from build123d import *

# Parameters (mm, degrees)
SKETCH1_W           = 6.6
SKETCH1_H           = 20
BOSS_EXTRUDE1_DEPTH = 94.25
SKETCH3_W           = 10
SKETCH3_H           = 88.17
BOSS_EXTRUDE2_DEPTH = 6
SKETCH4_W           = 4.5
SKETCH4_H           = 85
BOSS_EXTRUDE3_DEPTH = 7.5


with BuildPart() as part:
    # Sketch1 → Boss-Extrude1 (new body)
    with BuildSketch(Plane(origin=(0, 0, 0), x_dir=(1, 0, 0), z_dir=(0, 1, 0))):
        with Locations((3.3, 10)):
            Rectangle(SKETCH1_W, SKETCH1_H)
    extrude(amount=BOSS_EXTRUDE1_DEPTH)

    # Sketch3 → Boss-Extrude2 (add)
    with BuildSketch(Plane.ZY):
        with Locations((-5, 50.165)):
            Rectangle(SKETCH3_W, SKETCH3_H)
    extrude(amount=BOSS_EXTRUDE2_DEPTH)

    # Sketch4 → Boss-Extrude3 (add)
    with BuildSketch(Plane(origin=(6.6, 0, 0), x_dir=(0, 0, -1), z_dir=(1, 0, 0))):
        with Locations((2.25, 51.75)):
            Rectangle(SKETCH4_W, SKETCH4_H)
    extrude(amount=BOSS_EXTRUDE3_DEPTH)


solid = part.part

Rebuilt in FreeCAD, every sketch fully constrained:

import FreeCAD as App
import Part
import Sketcher

V = App.Vector
Q = App.Units.Quantity

doc = App.newDocument("Part")
params = doc.addObject("Spreadsheet::Sheet", "Params")
for row, (alias, value) in enumerate([
    ("sketch1_height", "20 mm"),
    ("sketch1_width", "6.6 mm"),
    ("pad1_length", "94.25 mm"),
    ("sketch2_height", "10 mm"),
    ("sketch2_width", "88.17 mm"),
    ("pad2_length", "6 mm"),
    ("sketch3_width", "85 mm"),
    ("sketch3_height", "4.5 mm"),
    ("pad3_length", "7.5 mm"),
], start=1):
    params.set(f"A{row}", alias)
    params.set(f"B{row}", "=" + value)
    params.setAlias(f"B{row}", alias)

body = doc.addObject("PartDesign::Body", "Body")

sketch1 = body.newObject("Sketcher::SketchObject", "Sketch")
sketch1.AttachmentSupport = (doc.getObject("XZ_Plane"), [""])
sketch1.MapMode = "FlatFace"
sketch1.addGeometry([
    Part.LineSegment(V(0, -20, 0), V(0, 0, 0)),
    Part.LineSegment(V(0, 0, 0), V(6.6, 0, 0)),
    Part.LineSegment(V(6.6, 0, 0), V(6.6, -20, 0)),
    Part.LineSegment(V(6.6, -20, 0), V(0, -20, 0)),
], False)
sketch1.addConstraint([
    Sketcher.Constraint("Coincident", 0, 2, 1, 1),
    Sketcher.Constraint("Coincident", 1, 2, 2, 1),
    Sketcher.Constraint("Coincident", 2, 2, 3, 1),
    Sketcher.Constraint("Coincident", 3, 2, 0, 1),
    Sketcher.Constraint("Vertical", 0),
    Sketcher.Constraint("Horizontal", 1),
    Sketcher.Constraint("Vertical", 2),
    Sketcher.Constraint("Horizontal", 3),
    Sketcher.Constraint("Coincident", 0, 2, -1, 1),
    Sketcher.Constraint("DistanceY", 0, 1, 0, 2, Q("20 mm")),
    Sketcher.Constraint("DistanceX", 1, 1, 1, 2, Q("6.6 mm")),
])
sketch1.setExpression("Constraints[9]", "Params.sketch1_height")
sketch1.setExpression("Constraints[10]", "Params.sketch1_width")
pad1 = body.newObject("PartDesign::Pad", "Pad")
pad1.Profile = sketch1
pad1.setExpression("Length", "Params.pad1_length")
pad1.Reversed = True

sketch2 = body.newObject("Sketcher::SketchObject", "Sketch001")
sketch2.AttachmentSupport = (doc.getObject("YZ_Plane"), [""])
sketch2.MapMode = "FlatFace"
sketch2.addGeometry([
    Part.LineSegment(V(94.25, -10, 0), V(6.08, -10, 0)),
    Part.LineSegment(V(6.08, -10, 0), V(6.08, 0, 0)),
    Part.LineSegment(V(6.08, 0, 0), V(94.25, 0, 0)),
    Part.LineSegment(V(94.25, 0, 0), V(94.25, -10, 0)),
], False)
sketch2.addConstraint([
    Sketcher.Constraint("Coincident", 0, 2, 1, 1),
    Sketcher.Constraint("Coincident", 1, 2, 2, 1),
    Sketcher.Constraint("Coincident", 2, 2, 3, 1),
    Sketcher.Constraint("Coincident", 3, 2, 0, 1),
    Sketcher.Constraint("Horizontal", 0),
    Sketcher.Constraint("Vertical", 1),
    Sketcher.Constraint("Horizontal", 2),
    Sketcher.Constraint("Vertical", 3),
    Sketcher.Constraint("PointOnObject", 1, 2, -1),
    Sketcher.Constraint("DistanceY", 1, 1, 1, 2, Q("10 mm")),
    Sketcher.Constraint("DistanceX", 0, 2, 0, 1, Q("88.17 mm")),
    Sketcher.Constraint("DistanceX", -1, 1, 0, 2, Q("6.08 mm")),
])
sketch2.setExpression("Constraints[9]", "Params.sketch2_height")
sketch2.setExpression("Constraints[10]", "Params.sketch2_width")
pad2 = body.newObject("PartDesign::Pad", "Pad001")
pad2.Profile = sketch2
pad2.setExpression("Length", "Params.pad2_length")
pad2.Reversed = True

sketch3 = body.newObject("Sketcher::SketchObject", "Sketch002")
sketch3.AttachmentSupport = (doc.getObject("YZ_Plane"), [""])
sketch3.MapMode = "FlatFace"
sketch3.AttachmentOffset = App.Placement(V(0, 0, 6.6), App.Rotation())
sketch3.addGeometry([
    Part.LineSegment(V(94.25, 0, 0), V(9.25, 0, 0)),
    Part.LineSegment(V(9.25, 0, 0), V(9.25, -4.5, 0)),
    Part.LineSegment(V(9.25, -4.5, 0), V(94.25, -4.5, 0)),
    Part.LineSegment(V(94.25, -4.5, 0), V(94.25, 0, 0)),
], False)
sketch3.addConstraint([
    Sketcher.Constraint("Coincident", 0, 2, 1, 1),
    Sketcher.Constraint("Coincident", 1, 2, 2, 1),
    Sketcher.Constraint("Coincident", 2, 2, 3, 1),
    Sketcher.Constraint("Coincident", 3, 2, 0, 1),
    Sketcher.Constraint("Horizontal", 0),
    Sketcher.Constraint("Vertical", 1),
    Sketcher.Constraint("Horizontal", 2),
    Sketcher.Constraint("Vertical", 3),
    Sketcher.Constraint("PointOnObject", 0, 2, -1),
    Sketcher.Constraint("DistanceX", 0, 2, 0, 1, Q("85 mm")),
    Sketcher.Constraint("DistanceY", 1, 2, 1, 1, Q("4.5 mm")),
    Sketcher.Constraint("DistanceX", -1, 1, 0, 2, Q("9.25 mm")),
])
sketch3.setExpression("Constraints[9]", "Params.sketch3_width")
sketch3.setExpression("Constraints[10]", "Params.sketch3_height")
pad3 = body.newObject("PartDesign::Pad", "Pad002")
pad3.Profile = sketch3
pad3.setExpression("Length", "Params.pad3_length")

doc.recompute()
